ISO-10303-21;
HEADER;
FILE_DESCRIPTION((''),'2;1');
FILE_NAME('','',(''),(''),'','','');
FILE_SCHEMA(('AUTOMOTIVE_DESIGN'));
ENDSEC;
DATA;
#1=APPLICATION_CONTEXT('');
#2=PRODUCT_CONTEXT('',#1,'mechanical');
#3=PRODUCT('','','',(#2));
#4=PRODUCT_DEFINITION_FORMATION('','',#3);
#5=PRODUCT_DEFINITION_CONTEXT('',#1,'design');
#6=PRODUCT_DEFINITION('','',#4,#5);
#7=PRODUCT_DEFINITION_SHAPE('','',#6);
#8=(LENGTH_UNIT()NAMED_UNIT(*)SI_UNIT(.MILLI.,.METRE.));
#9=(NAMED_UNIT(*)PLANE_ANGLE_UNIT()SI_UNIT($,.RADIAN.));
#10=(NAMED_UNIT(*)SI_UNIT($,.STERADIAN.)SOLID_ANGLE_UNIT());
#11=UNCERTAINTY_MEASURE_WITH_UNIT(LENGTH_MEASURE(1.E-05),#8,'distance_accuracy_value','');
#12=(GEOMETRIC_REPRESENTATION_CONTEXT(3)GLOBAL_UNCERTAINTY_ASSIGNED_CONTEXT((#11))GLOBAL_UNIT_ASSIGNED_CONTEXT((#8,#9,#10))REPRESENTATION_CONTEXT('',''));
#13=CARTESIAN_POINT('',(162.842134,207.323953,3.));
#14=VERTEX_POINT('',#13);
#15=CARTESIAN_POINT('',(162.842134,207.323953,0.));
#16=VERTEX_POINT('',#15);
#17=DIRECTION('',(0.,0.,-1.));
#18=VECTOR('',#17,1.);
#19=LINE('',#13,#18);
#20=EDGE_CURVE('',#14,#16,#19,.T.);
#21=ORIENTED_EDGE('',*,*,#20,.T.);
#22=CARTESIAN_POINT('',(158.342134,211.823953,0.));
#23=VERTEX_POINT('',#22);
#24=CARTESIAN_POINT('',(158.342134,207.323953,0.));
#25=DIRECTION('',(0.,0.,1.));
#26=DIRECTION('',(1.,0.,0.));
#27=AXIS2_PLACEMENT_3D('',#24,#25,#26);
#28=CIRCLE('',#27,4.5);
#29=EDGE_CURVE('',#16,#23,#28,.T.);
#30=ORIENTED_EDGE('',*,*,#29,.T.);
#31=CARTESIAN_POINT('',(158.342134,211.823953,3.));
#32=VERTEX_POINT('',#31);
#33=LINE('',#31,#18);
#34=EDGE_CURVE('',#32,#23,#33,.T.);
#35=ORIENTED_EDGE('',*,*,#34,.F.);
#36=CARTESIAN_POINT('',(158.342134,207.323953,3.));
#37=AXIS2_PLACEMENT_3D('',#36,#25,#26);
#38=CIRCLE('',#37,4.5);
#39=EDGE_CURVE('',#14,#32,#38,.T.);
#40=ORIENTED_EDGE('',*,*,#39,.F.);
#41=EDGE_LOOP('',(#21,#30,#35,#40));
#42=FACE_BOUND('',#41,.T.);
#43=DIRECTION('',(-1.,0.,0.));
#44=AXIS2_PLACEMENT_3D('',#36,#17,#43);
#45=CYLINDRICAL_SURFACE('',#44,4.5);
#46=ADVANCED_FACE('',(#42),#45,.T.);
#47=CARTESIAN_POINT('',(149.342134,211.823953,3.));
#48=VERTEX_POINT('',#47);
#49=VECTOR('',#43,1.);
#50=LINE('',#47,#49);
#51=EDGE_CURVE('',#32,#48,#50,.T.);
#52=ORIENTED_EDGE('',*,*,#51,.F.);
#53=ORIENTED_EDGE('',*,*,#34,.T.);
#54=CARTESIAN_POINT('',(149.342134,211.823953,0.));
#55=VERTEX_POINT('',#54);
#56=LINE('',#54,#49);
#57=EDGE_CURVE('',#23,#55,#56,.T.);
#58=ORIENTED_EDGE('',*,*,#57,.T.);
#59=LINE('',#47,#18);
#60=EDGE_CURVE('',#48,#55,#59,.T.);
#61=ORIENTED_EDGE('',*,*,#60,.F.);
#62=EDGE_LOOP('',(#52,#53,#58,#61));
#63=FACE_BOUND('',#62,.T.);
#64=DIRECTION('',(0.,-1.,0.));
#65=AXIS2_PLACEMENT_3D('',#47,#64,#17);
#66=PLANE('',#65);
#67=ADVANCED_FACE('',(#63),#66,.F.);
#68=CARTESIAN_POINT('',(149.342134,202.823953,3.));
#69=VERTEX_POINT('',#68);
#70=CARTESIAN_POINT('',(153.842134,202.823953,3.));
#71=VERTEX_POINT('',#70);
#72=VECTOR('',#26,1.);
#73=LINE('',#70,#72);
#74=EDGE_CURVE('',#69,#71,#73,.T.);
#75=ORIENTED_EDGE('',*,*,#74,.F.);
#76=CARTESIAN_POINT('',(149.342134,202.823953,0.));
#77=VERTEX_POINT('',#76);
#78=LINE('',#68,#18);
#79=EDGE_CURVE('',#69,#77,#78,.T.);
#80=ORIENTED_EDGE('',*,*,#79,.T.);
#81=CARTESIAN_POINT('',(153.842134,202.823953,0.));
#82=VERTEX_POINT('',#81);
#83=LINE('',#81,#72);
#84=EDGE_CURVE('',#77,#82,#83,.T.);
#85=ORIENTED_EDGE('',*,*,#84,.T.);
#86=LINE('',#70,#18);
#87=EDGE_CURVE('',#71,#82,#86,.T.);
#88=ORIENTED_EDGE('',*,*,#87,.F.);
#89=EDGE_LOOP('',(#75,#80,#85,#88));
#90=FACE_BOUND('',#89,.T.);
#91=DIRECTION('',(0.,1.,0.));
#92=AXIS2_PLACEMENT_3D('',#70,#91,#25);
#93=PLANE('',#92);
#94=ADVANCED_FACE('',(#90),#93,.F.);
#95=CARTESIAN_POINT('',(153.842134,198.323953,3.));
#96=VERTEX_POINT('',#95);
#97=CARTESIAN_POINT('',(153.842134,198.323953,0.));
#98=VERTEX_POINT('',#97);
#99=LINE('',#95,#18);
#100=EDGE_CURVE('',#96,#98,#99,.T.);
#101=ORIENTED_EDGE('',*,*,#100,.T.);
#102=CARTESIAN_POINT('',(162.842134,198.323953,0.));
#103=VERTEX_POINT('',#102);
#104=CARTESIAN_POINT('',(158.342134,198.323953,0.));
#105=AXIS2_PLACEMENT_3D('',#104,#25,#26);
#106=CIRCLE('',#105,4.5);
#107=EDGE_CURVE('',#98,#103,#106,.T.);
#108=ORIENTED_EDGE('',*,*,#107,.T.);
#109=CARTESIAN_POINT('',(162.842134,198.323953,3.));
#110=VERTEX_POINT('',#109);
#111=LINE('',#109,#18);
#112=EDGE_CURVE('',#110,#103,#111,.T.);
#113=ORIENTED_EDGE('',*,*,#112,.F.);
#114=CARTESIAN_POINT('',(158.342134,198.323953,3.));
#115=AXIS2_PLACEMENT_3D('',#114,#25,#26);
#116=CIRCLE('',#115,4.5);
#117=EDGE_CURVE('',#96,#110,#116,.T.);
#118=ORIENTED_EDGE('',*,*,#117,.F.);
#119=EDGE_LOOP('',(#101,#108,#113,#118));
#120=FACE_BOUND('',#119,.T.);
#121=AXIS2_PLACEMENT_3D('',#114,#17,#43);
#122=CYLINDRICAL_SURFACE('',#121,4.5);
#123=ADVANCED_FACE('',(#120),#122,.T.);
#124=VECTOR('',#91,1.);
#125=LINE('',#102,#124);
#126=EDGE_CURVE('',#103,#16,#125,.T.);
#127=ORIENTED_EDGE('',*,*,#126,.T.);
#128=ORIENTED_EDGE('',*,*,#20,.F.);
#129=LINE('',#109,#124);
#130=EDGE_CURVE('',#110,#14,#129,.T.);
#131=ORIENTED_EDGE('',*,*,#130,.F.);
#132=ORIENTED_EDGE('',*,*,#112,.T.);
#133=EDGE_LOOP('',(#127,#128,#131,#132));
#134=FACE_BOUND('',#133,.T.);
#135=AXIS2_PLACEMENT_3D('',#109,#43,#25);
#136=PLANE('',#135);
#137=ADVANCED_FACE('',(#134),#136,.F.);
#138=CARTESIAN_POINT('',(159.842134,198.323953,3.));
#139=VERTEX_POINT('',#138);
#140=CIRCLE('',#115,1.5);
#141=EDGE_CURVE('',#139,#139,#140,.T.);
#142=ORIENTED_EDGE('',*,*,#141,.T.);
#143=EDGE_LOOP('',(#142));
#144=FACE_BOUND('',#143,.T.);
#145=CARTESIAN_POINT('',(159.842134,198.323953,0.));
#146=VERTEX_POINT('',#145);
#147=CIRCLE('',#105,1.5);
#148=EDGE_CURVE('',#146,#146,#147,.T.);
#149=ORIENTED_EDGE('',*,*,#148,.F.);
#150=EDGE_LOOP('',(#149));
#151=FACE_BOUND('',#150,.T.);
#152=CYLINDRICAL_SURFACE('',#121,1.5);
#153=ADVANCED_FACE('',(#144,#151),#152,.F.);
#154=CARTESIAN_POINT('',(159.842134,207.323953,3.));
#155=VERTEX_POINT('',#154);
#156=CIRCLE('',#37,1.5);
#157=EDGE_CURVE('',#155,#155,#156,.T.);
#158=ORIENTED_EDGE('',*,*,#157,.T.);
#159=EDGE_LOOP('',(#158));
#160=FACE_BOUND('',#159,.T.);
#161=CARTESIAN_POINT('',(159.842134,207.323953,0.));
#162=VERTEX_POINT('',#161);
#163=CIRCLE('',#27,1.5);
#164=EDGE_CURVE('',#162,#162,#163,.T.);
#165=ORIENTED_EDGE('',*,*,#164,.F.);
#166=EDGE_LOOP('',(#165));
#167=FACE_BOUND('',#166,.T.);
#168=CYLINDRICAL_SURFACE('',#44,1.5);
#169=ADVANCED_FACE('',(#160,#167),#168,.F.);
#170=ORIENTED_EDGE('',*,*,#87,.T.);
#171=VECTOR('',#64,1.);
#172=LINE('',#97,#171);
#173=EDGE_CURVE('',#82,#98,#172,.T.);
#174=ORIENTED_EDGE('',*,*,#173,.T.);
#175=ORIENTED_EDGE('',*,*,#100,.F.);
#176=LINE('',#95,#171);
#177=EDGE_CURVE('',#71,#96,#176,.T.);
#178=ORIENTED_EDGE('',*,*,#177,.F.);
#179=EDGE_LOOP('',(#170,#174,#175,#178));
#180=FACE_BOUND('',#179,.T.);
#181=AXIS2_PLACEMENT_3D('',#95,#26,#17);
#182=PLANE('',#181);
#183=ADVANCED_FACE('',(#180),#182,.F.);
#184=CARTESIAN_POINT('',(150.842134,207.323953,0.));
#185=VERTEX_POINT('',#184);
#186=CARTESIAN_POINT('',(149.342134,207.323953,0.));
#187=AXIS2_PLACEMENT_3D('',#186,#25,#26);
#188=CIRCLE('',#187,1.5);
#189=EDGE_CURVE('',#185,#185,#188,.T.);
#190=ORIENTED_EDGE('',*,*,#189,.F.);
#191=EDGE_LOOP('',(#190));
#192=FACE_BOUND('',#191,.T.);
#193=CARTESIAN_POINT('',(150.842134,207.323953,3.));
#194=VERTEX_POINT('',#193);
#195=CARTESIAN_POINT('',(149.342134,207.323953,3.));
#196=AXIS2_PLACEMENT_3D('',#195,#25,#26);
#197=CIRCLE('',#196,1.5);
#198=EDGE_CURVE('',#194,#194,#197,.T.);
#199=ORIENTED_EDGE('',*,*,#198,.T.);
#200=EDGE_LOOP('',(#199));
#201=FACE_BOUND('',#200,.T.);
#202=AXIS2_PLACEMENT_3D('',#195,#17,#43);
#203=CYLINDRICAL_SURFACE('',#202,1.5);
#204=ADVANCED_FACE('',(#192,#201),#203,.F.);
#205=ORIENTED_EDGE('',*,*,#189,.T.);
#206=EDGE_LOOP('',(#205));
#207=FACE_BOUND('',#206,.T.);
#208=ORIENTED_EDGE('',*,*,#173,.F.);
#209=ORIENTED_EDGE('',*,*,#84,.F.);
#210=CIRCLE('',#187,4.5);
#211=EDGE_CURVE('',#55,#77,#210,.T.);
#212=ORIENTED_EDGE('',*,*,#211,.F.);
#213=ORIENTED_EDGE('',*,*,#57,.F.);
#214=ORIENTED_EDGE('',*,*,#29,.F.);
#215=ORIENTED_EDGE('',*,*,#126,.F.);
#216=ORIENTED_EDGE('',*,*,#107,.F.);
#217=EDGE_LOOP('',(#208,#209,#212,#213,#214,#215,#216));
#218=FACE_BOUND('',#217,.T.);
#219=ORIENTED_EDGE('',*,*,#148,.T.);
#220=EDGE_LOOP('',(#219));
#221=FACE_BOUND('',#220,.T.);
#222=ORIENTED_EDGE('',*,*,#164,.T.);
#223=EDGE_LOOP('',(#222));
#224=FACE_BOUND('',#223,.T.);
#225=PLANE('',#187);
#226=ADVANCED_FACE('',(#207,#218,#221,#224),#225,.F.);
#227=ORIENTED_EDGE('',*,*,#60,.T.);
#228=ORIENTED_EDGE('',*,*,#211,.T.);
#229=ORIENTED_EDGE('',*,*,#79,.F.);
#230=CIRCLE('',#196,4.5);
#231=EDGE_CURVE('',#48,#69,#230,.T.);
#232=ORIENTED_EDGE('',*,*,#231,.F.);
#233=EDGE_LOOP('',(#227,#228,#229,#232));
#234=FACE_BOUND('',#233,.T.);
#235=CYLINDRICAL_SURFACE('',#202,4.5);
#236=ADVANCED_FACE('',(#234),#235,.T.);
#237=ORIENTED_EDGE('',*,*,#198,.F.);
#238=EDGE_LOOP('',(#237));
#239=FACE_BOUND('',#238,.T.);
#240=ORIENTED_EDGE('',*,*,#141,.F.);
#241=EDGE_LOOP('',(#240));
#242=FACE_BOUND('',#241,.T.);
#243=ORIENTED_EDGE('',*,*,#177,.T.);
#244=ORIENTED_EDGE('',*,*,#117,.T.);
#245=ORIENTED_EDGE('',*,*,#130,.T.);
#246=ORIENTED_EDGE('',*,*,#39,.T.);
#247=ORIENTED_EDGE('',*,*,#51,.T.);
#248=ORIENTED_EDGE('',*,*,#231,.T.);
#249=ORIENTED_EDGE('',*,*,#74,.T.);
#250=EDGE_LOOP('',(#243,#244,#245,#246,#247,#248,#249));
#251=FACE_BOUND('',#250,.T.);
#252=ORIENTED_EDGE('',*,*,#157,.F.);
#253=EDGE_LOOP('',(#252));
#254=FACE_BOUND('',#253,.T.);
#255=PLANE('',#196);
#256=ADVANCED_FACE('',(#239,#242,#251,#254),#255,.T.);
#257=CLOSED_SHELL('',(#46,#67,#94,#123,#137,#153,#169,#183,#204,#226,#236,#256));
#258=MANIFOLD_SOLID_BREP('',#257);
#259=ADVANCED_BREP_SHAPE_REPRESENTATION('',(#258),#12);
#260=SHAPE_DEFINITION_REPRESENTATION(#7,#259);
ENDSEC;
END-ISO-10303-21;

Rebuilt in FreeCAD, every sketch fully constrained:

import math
import FreeCAD as App
import Part
import Sketcher
from FreeCAD import Vector

doc = App.newDocument("Part")
body = doc.addObject("PartDesign::Body", "Body")

sketch1 = body.newObject("Sketcher::SketchObject", "Sketch")
sketch1.AttachmentSupport = (doc.getObject("XY_Plane"), [""])
sketch1.MapMode = "FlatFace"
sketch1.addGeometry([
    Part.LineSegment(Vector(158.3, 211.8, 0), Vector(149.3, 211.8, 0)),
    Part.ArcOfCircle(Part.Circle(Vector(149.3, 207.3, 0), Vector(0, 0, 1), 4.5), math.radians(90), math.radians(270)),
    Part.LineSegment(Vector(149.3, 202.8, 0), Vector(153.8, 202.8, 0)),
    Part.LineSegment(Vector(153.8, 202.8, 0), Vector(153.8, 198.3, 0)),
    Part.ArcOfCircle(Part.Circle(Vector(158.3, 198.3, 0), Vector(0, 0, 1), 4.5), math.radians(180), math.radians(360)),
    Part.LineSegment(Vector(162.8, 198.3, 0), Vector(162.8, 207.3, 0)),
    Part.ArcOfCircle(Part.Circle(Vector(158.3, 207.3, 0), Vector(0, 0, 1), 4.5), math.radians(0), math.radians(90)),
    Part.Circle(Vector(158.3, 198.3, 0), Vector(0, 0, 1), 1.5),
    Part.Circle(Vector(158.3, 207.3, 0), Vector(0, 0, 1), 1.5),
    Part.Circle(Vector(149.3, 207.3, 0), Vector(0, 0, 1), 1.5),
], False)
sketch1.addConstraint([
    Sketcher.Constraint("Tangent", 0, 2, 1, 1),
    Sketcher.Constraint("Tangent", 1, 2, 2, 1),
    Sketcher.Constraint("Coincident", 2, 2, 3, 1),
    Sketcher.Constraint("Tangent", 3, 2, 4, 1),
    Sketcher.Constraint("Tangent", 4, 2, 5, 1),
    Sketcher.Constraint("Tangent", 5, 2, 6, 1),
    Sketcher.Constraint("Tangent", 6, 2, 0, 1),
    Sketcher.Constraint("Horizontal", 0),
    Sketcher.Constraint("Horizontal", 2),
    Sketcher.Constraint("Vertical", 3),
    Sketcher.Constraint("Vertical", 5),
    Sketcher.Constraint("Coincident", 7, 3, 4, 3),
    Sketcher.Constraint("Coincident", 8, 3, 6, 3),
    Sketcher.Constraint("Coincident", 9, 3, 1, 3),
    Sketcher.Constraint("Equal", 1, 4),
    Sketcher.Constraint("Equal", 4, 6),
    Sketcher.Constraint("Equal", 7, 8),
    Sketcher.Constraint("Equal", 8, 9),
    Sketcher.Constraint("Equal", 2, 3),
    Sketcher.Constraint("Diameter", 7, 3.0),
    Sketcher.Constraint("Radius", 1, 4.5),
    Sketcher.Constraint("DistanceX", 0, 2, 0, 1, 9.0),
    Sketcher.Constraint("DistanceX", -1, 1, 1, 3, 149.342134),
    Sketcher.Constraint("DistanceY", -1, 1, 1, 3, 207.323953),
])
pad1 = body.newObject("PartDesign::Pad", "Pad")
pad1.Profile = sketch1
pad1.Length = 3

doc.recompute()
